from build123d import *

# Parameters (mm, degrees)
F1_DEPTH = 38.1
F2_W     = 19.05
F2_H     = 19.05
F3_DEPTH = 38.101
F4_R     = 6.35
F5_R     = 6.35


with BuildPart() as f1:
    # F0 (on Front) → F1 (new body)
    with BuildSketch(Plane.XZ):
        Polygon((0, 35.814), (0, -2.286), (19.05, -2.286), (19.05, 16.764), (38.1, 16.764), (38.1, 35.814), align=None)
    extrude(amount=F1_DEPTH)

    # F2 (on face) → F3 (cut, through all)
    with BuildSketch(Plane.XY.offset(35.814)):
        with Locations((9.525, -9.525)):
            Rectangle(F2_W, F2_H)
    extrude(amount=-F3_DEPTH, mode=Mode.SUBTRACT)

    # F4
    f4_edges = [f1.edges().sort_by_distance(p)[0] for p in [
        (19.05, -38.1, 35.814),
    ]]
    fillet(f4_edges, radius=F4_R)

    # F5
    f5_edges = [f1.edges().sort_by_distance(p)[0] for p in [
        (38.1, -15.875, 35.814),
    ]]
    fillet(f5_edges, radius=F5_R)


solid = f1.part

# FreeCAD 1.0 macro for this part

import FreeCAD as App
import Part
import Sketcher

V = App.Vector
Q = App.Units.Quantity


def edges_at(feature, points):
    """Names of the edges that pass closest to the given points."""
    edges = feature.Shape.Edges
    near = lambda p: min(range(len(edges)), key=lambda i: edges[i].distToShape(Part.Vertex(*p))[0])
    return sorted({f"Edge{near(p) + 1}" for p in points})


def add_polygon(sketch, points):
    """Adds a closed chain of lines whose ends are joined by coincident constraints."""
    first, n = sketch.GeometryCount, len(points)
    for a, b in zip(points, points[1:] + points[:1]):
        sketch.addGeometry(Part.LineSegment(App.Vector(*a, 0), App.Vector(*b, 0)), False)
    for i in range(n):
        sketch.addConstraint(Sketcher.Constraint("Coincident", first + i, 2, first + (i + 1) % n, 1))

doc = App.newDocument("Part")
body = doc.addObject("PartDesign::Body", "Body")

# Sketch on XZ plane
sketch1 = body.newObject("Sketcher::SketchObject", "Sketch")
sketch1.AttachmentSupport = (doc.getObject("XZ_Plane"), [""])
sketch1.MapMode = "FlatFace"
add_polygon(sketch1, [(0, 36), (0, -2), (19, -2), (19, 17), (38, 17), (38, 36)])  # lines 0-5
sketch1.addConstraint([
    Sketcher.Constraint("Vertical", 0),
    Sketcher.Constraint("Horizontal", 1),
    Sketcher.Constraint("Vertical", 2),
    Sketcher.Constraint("Horizontal", 3),
    Sketcher.Constraint("Vertical", 4),
    Sketcher.Constraint("Horizontal", 5),
    Sketcher.Constraint("PointOnObject", 0, 2, -2),
    Sketcher.Constraint("Equal", 1, 3),
    Sketcher.Constraint("Equal", 5, 0),
    Sketcher.Constraint("Equal", 3, 2),
    Sketcher.Constraint("DistanceX", 5, 2, 5, 1, Q("1.5 in")),
    Sketcher.Constraint("DistanceY", 0, 2, -1, 1, Q("0.09 in")),
])
pad1 = body.newObject("PartDesign::Pad", "Pad")
pad1.Profile = sketch1
pad1.Length = Q("1.5 in")

# Sketch on XY plane
sketch2 = body.newObject("Sketcher::SketchObject", "Sketch001")
sketch2.AttachmentSupport = (doc.getObject("XY_Plane"), [""])
sketch2.MapMode = "FlatFace"
sketch2.AttachmentOffset = App.Placement(V(0, 0, 1.41 * 25.4), App.Rotation())
add_polygon(sketch2, [(0, 0), (0, -19), (19, -19), (19, 0)])  # lines 0-3
sketch2.addConstraint([
    Sketcher.Constraint("Vertical", 0),
    Sketcher.Constraint("Horizontal", 1),
    Sketcher.Constraint("Vertical", 2),
    Sketcher.Constraint("Horizontal", 3),
    Sketcher.Constraint("Coincident", 3, 2, -1, 1),
    Sketcher.Constraint("Equal", 3, 0),
    Sketcher.Constraint("DistanceX", 1, 1, 1, 2, Q("0.75 in")),
])
pocket1 = body.newObject("PartDesign::Pocket", "Pocket")
pocket1.Profile = sketch2
pocket1.Type = "ThroughAll"
doc.recompute()

fillet = body.newObject("PartDesign::Fillet", "Fillet")
fillet.Base = (pocket1, edges_at(pocket1, [(19.05, -38.1, 35.814)]))
fillet.Radius = Q("0.25 in")
doc.recompute()

fillet2 = body.newObject("PartDesign::Fillet", "Fillet001")
fillet2.Base = (fillet, edges_at(fillet, [(38.1, -15.875, 35.814)]))
fillet2.Radius = Q("0.25 in")

doc.recompute()
